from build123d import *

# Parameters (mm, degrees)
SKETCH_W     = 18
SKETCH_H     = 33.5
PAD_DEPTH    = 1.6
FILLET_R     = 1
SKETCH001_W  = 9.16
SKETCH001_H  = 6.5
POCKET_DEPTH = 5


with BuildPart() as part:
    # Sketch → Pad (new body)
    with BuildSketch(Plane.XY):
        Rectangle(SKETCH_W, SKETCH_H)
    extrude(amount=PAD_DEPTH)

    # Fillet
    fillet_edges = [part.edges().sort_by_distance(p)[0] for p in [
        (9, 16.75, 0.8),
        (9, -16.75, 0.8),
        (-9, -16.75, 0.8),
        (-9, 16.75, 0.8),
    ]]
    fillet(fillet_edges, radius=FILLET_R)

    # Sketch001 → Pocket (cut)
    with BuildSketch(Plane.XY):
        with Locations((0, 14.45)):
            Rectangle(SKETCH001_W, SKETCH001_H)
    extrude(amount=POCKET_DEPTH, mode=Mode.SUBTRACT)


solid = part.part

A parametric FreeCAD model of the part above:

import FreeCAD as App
import Part
import Sketcher

V = App.Vector


def edges_at(feature, points):
    """Names of the edges that pass closest to the given points."""
    edges = feature.Shape.Edges
    near = lambda p: min(range(len(edges)), key=lambda i: edges[i].distToShape(Part.Vertex(*p))[0])
    return sorted({f"Edge{near(p) + 1}" for p in points})

doc = App.newDocument("Part")
body = doc.addObject("PartDesign::Body", "Body")

# Sketch on XY plane
sketch1 = doc.addObject("Sketcher::SketchObject", "Sketch")
body.addObject(sketch1)
sketch1.AttachmentSupport = (doc.XY_Plane, [""])
sketch1.MapMode = "FlatFace"
sketch1.addGeometry(Part.LineSegment(V(-9, 17, 0), V(-9, -17, 0)), False)
sketch1.addGeometry(Part.LineSegment(V(-9, -17, 0), V(9, -17, 0)), False)
sketch1.addGeometry(Part.LineSegment(V(9, -17, 0), V(9, 17, 0)), False)
sketch1.addGeometry(Part.LineSegment(V(9, 17, 0), V(-9, 17, 0)), False)
sketch1.addConstraint(Sketcher.Constraint("Coincident", 0, 2, 1, 1))
sketch1.addConstraint(Sketcher.Constraint("Coincident", 1, 2, 2, 1))
sketch1.addConstraint(Sketcher.Constraint("Coincident", 2, 2, 3, 1))
sketch1.addConstraint(Sketcher.Constraint("Coincident", 3, 2, 0, 1))
sketch1.addConstraint(Sketcher.Constraint("Vertical", 0))
sketch1.addConstraint(Sketcher.Constraint("Horizontal", 1))
sketch1.addConstraint(Sketcher.Constraint("Vertical", 2))
sketch1.addConstraint(Sketcher.Constraint("Horizontal", 3))
sketch1.addConstraint(Sketcher.Constraint("Symmetric", 0, 2, 2, 2, -1, 1))
sketch1.addConstraint(Sketcher.Constraint("DistanceX", 1, 1, 1, 2, 18.0))
sketch1.addConstraint(Sketcher.Constraint("DistanceY", 0, 2, 0, 1, 33.5))
pad1 = doc.addObject("PartDesign::Pad", "Pad")
body.addObject(pad1)
pad1.Profile = sketch1
pad1.Length = 1.6
doc.recompute()

fillet = doc.addObject("PartDesign::Fillet", "Fillet")
body.addObject(fillet)
fillet.Base = (pad1, edges_at(pad1, [
    (9, 16.75, 0.8),
    (9, -16.75, 0.8),
    (-9, -16.75, 0.8),
    (-9, 16.75, 0.8),
]))
fillet.Radius = 1

# Sketch on XY plane
sketch2 = doc.addObject("Sketcher::SketchObject", "Sketch001")
body.addObject(sketch2)
sketch2.AttachmentSupport = (doc.XY_Plane, [""])
sketch2.MapMode = "FlatFace"
sketch2.addGeometry(Part.LineSegment(V(-5, 18, 0), V(-5, 11, 0)), False)
sketch2.addGeometry(Part.LineSegment(V(-5, 11, 0), V(5, 11, 0)), False)
sketch2.addGeometry(Part.LineSegment(V(5, 11, 0), V(5, 18, 0)), False)
sketch2.addGeometry(Part.LineSegment(V(5, 18, 0), V(-5, 18, 0)), False)
sketch2.addConstraint(Sketcher.Constraint("Coincident", 0, 2, 1, 1))
sketch2.addConstraint(Sketcher.Constraint("Coincident", 1, 2, 2, 1))
sketch2.addConstraint(Sketcher.Constraint("Coincident", 2, 2, 3, 1))
sketch2.addConstraint(Sketcher.Constraint("Coincident", 3, 2, 0, 1))
sketch2.addConstraint(Sketcher.Constraint("Vertical", 0))
sketch2.addConstraint(Sketcher.Constraint("Horizontal", 1))
sketch2.addConstraint(Sketcher.Constraint("Vertical", 2))
sketch2.addConstraint(Sketcher.Constraint("Horizontal", 3))
sketch2.addConstraint(Sketcher.Constraint("DistanceY", 0, 2, 0, 1, 6.5))
sketch2.addConstraint(Sketcher.Constraint("DistanceX", 1, 1, 1, 2, 9.16))
sketch2.addConstraint(Sketcher.Constraint("DistanceY", -1, 1, 0, 2, 11.2))
sketch2.addConstraint(Sketcher.Constraint("DistanceX", 0, 2, -1, 1, 4.58))
pocket1 = doc.addObject("PartDesign::Pocket", "Pocket")
body.addObject(pocket1)
pocket1.Profile = sketch2
pocket1.Length = 5
pocket1.Reversed = True

doc.recompute()
